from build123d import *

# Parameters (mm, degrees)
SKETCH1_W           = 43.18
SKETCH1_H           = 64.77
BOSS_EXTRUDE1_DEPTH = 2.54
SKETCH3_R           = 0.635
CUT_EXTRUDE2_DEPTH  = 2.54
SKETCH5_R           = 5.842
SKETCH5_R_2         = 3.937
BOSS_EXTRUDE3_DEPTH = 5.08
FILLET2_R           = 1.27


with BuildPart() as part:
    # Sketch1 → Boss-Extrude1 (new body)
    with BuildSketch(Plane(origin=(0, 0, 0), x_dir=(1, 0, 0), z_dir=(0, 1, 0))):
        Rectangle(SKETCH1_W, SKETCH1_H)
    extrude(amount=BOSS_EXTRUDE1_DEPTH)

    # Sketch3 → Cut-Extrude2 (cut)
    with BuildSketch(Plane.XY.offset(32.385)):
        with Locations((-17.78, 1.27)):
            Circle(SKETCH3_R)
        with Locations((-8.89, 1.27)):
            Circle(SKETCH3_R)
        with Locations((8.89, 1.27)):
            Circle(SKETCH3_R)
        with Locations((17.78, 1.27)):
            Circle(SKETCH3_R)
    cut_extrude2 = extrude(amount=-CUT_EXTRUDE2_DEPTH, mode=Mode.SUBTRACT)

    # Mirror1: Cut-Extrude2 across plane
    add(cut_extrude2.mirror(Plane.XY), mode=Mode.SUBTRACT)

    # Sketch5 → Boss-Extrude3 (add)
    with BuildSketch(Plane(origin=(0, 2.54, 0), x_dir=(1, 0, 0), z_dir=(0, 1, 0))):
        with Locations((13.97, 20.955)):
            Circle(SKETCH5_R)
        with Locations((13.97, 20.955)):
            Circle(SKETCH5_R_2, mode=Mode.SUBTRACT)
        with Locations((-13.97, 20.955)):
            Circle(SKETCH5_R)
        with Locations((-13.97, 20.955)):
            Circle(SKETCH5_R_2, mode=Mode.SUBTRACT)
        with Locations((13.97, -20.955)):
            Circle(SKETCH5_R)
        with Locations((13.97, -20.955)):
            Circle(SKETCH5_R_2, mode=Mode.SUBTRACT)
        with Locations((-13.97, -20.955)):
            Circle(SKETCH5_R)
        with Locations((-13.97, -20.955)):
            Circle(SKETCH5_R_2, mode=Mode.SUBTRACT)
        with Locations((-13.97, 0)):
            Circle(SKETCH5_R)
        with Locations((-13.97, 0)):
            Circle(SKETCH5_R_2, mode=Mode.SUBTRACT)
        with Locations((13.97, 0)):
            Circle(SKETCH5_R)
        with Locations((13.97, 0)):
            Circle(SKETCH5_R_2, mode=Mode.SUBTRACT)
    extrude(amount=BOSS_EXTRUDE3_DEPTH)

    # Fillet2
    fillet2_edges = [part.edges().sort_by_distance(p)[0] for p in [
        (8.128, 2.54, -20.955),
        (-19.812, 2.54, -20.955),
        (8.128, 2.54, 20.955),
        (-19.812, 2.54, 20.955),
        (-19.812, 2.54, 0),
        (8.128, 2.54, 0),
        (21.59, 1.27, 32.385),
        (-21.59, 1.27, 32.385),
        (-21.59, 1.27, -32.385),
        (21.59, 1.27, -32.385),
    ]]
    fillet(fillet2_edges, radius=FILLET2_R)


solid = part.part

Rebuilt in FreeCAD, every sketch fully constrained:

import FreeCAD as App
import Part
import Sketcher
Q = App.Units.Quantity


def edges_at(feature, points):
    """Names of the edges that pass closest to the given points."""
    edges = feature.Shape.Edges
    near = lambda p: min(range(len(edges)), key=lambda i: edges[i].distToShape(Part.Vertex(*p))[0])
    return sorted({f"Edge{near(p) + 1}" for p in points})

doc = App.newDocument("Part")
body = doc.addObject("PartDesign::Body", "Body")

# Sketch on XZ plane
sketch1 = doc.addObject("Sketcher::SketchObject", "Sketch")
body.addObject(sketch1)
sketch1.AttachmentSupport = (doc.XZ_Plane, [""])
sketch1.MapMode = "FlatFace"
sketch1.addGeometry([
    Part.LineSegment(App.Vector(-21.59, -32.385, 0), App.Vector(-21.59, 32.385, 0)),
    Part.LineSegment(App.Vector(-21.59, 32.385, 0), App.Vector(21.59, 32.385, 0)),
    Part.LineSegment(App.Vector(21.59, 32.385, 0), App.Vector(21.59, -32.385, 0)),
    Part.LineSegment(App.Vector(21.59, -32.385, 0), App.Vector(-21.59, -32.385, 0)),
], False)
sketch1.addConstraint([
    Sketcher.Constraint("Coincident", 0, 2, 1, 1),
    Sketcher.Constraint("Coincident", 1, 2, 2, 1),
    Sketcher.Constraint("Coincident", 2, 2, 3, 1),
    Sketcher.Constraint("Coincident", 3, 2, 0, 1),
    Sketcher.Constraint("Vertical", 0),
    Sketcher.Constraint("Horizontal", 1),
    Sketcher.Constraint("Vertical", 2),
    Sketcher.Constraint("Horizontal", 3),
    Sketcher.Constraint("Symmetric", 0, 2, 2, 2, -1, 1),
    Sketcher.Constraint("DistanceX", 1, 1, 1, 2, Q("1.7 in")),
    Sketcher.Constraint("DistanceY", 0, 1, 0, 2, Q("2.55 in")),
])
pad1 = doc.addObject("PartDesign::Pad", "Pad")
body.addObject(pad1)
pad1.Profile = sketch1
pad1.Length = Q("0.1 in")
pad1.Reversed = True

# Sketch on XY plane
sketch2 = doc.addObject("Sketcher::SketchObject", "Sketch001")
body.addObject(sketch2)
sketch2.AttachmentSupport = (doc.XY_Plane, [""])
sketch2.MapMode = "FlatFace"
sketch2.AttachmentOffset = App.Placement(App.Vector(0, 0, 1.275 * 25.4), App.Rotation())
sketch2.addGeometry([
    Part.Circle(App.Vector(-17.78, 1.27, 0), App.Vector(0, 0, 1), 0.635),
    Part.Circle(App.Vector(-8.89, 1.27, 0), App.Vector(0, 0, 1), 0.635),
    Part.Circle(App.Vector(8.89, 1.27, 0), App.Vector(0, 0, 1), 0.635),
    Part.Circle(App.Vector(17.78, 1.27, 0), App.Vector(0, 0, 1), 0.635),
], False)
sketch2.addConstraint([
    Sketcher.Constraint("Equal", 0, 1),
    Sketcher.Constraint("Equal", 1, 2),
    Sketcher.Constraint("Equal", 2, 3),
    Sketcher.Constraint("Symmetric", 1, 3, 2, 3, -2),
    Sketcher.Constraint("Symmetric", 0, 3, 3, 3, -2),
    Sketcher.Constraint("Horizontal", 0, 3, 1, 3),
    Sketcher.Constraint("Diameter", 0, Q("0.05 in")),
    Sketcher.Constraint("DistanceX", 0, 3, -1, 1, Q("0.7 in")),
    Sketcher.Constraint("DistanceX", 1, 3, 2, 3, Q("0.7 in")),
    Sketcher.Constraint("DistanceY", -1, 1, 0, 3, Q("0.05 in")),
])
pocket1 = doc.addObject("PartDesign::Pocket", "Pocket")
body.addObject(pocket1)
pocket1.Profile = sketch2
pocket1.Length = Q("0.1 in")
doc.recompute()

mirrored = doc.addObject("PartDesign::Mirrored", "Mirrored")
body.addObject(mirrored)
mirrored.Originals = [pocket1]
mirrored.MirrorPlane = (doc.XY_Plane, [""])
body.Tip = mirrored

# Sketch on XZ plane
sketch3 = doc.addObject("Sketcher::SketchObject", "Sketch002")
body.addObject(sketch3)
sketch3.AttachmentSupport = (doc.XZ_Plane, [""])
sketch3.MapMode = "FlatFace"
sketch3.AttachmentOffset = App.Placement(App.Vector(0, 0, -0.1 * 25.4), App.Rotation())
sketch3.addGeometry([
    Part.Circle(App.Vector(13.97, -20.955, 0), App.Vector(0, 0, 1), 5.842),  # 0
    Part.Circle(App.Vector(13.97, -20.955, 0), App.Vector(0, 0, 1), 3.937),  # 1
    Part.Circle(App.Vector(-13.97, -20.955, 0), App.Vector(0, 0, 1), 5.842),  # 2
    Part.Circle(App.Vector(-13.97, -20.955, 0), App.Vector(0, 0, 1), 3.937),  # 3
    Part.Circle(App.Vector(13.97, 20.955, 0), App.Vector(0, 0, 1), 5.842),  # 4
    Part.Circle(App.Vector(13.97, 20.955, 0), App.Vector(0, 0, 1), 3.937),  # 5
    Part.Circle(App.Vector(-13.97, 20.955, 0), App.Vector(0, 0, 1), 5.842),  # 6
    Part.Circle(App.Vector(-13.97, 20.955, 0), App.Vector(0, 0, 1), 3.937),  # 7
    Part.Circle(App.Vector(-13.97, 0, 0), App.Vector(0, 0, 1), 5.842),  # 8
    Part.Circle(App.Vector(-13.97, 0, 0), App.Vector(0, 0, 1), 3.937),  # 9
    Part.Circle(App.Vector(13.97, 0, 0), App.Vector(0, 0, 1), 5.842),  # 10
    Part.Circle(App.Vector(13.97, 0, 0), App.Vector(0, 0, 1), 3.937),  # 11
], False)
sketch3.addConstraint([
    Sketcher.Constraint("Coincident", 1, 3, 0, 3),
    Sketcher.Constraint("Coincident", 3, 3, 2, 3),
    Sketcher.Constraint("Coincident", 5, 3, 4, 3),
    Sketcher.Constraint("Coincident", 7, 3, 6, 3),
    Sketcher.Constraint("Coincident", 9, 3, 8, 3),
    Sketcher.Constraint("Coincident", 11, 3, 10, 3),
    Sketcher.Constraint("Equal", 0, 2),
    Sketcher.Constraint("Equal", 1, 3),
    Sketcher.Constraint("Equal", 2, 4),
    Sketcher.Constraint("Equal", 3, 5),
    Sketcher.Constraint("Equal", 4, 6),
    Sketcher.Constraint("Equal", 5, 7),
    Sketcher.Constraint("Equal", 6, 8),
    Sketcher.Constraint("Equal", 7, 9),
    Sketcher.Constraint("Equal", 8, 10),
    Sketcher.Constraint("Equal", 9, 11),
    Sketcher.Constraint("Symmetric", 2, 3, 4, 3, -1, 1),
    Sketcher.Constraint("Symmetric", 0, 3, 6, 3, -1, 1),
    Sketcher.Constraint("Symmetric", 8, 3, 10, 3, -1, 1),
    Sketcher.Constraint("Symmetric", 0, 3, 2, 3, -2),
    Sketcher.Constraint("PointOnObject", 8, 3, -1),
    Sketcher.Constraint("Vertical", 7, 3, 8, 3),
    Sketcher.Constraint("Diameter", 0, Q("0.46 in")),
    Sketcher.Constraint("Diameter", 1, Q("0.31 in")),
    Sketcher.Constraint("DistanceX", 2, 3, 0, 3, Q("1.1 in")),
    Sketcher.Constraint("DistanceY", 0, 3, 4, 3, Q("1.65 in")),
])
pad2 = doc.addObject("PartDesign::Pad", "Pad001")
body.addObject(pad2)
pad2.Profile = sketch3
pad2.Length = Q("0.2 in")
pad2.Reversed = True
doc.recompute()

fillet = doc.addObject("PartDesign::Fillet", "Fillet")
body.addObject(fillet)
fillet.Base = (pad2, edges_at(pad2, [
    (8.128, 2.54, -20.955),
    (-19.812, 2.54, -20.955),
    (8.128, 2.54, 20.955),
    (-19.812, 2.54, 20.955),
    (-19.812, 2.54, 0),
    (8.128, 2.54, 0),
    (21.59, 1.27, 32.385),
    (-21.59, 1.27, 32.385),
    (-21.59, 1.27, -32.385),
    (21.59, 1.27, -32.385),
]))
fillet.Radius = Q("0.05 in")

doc.recompute()
